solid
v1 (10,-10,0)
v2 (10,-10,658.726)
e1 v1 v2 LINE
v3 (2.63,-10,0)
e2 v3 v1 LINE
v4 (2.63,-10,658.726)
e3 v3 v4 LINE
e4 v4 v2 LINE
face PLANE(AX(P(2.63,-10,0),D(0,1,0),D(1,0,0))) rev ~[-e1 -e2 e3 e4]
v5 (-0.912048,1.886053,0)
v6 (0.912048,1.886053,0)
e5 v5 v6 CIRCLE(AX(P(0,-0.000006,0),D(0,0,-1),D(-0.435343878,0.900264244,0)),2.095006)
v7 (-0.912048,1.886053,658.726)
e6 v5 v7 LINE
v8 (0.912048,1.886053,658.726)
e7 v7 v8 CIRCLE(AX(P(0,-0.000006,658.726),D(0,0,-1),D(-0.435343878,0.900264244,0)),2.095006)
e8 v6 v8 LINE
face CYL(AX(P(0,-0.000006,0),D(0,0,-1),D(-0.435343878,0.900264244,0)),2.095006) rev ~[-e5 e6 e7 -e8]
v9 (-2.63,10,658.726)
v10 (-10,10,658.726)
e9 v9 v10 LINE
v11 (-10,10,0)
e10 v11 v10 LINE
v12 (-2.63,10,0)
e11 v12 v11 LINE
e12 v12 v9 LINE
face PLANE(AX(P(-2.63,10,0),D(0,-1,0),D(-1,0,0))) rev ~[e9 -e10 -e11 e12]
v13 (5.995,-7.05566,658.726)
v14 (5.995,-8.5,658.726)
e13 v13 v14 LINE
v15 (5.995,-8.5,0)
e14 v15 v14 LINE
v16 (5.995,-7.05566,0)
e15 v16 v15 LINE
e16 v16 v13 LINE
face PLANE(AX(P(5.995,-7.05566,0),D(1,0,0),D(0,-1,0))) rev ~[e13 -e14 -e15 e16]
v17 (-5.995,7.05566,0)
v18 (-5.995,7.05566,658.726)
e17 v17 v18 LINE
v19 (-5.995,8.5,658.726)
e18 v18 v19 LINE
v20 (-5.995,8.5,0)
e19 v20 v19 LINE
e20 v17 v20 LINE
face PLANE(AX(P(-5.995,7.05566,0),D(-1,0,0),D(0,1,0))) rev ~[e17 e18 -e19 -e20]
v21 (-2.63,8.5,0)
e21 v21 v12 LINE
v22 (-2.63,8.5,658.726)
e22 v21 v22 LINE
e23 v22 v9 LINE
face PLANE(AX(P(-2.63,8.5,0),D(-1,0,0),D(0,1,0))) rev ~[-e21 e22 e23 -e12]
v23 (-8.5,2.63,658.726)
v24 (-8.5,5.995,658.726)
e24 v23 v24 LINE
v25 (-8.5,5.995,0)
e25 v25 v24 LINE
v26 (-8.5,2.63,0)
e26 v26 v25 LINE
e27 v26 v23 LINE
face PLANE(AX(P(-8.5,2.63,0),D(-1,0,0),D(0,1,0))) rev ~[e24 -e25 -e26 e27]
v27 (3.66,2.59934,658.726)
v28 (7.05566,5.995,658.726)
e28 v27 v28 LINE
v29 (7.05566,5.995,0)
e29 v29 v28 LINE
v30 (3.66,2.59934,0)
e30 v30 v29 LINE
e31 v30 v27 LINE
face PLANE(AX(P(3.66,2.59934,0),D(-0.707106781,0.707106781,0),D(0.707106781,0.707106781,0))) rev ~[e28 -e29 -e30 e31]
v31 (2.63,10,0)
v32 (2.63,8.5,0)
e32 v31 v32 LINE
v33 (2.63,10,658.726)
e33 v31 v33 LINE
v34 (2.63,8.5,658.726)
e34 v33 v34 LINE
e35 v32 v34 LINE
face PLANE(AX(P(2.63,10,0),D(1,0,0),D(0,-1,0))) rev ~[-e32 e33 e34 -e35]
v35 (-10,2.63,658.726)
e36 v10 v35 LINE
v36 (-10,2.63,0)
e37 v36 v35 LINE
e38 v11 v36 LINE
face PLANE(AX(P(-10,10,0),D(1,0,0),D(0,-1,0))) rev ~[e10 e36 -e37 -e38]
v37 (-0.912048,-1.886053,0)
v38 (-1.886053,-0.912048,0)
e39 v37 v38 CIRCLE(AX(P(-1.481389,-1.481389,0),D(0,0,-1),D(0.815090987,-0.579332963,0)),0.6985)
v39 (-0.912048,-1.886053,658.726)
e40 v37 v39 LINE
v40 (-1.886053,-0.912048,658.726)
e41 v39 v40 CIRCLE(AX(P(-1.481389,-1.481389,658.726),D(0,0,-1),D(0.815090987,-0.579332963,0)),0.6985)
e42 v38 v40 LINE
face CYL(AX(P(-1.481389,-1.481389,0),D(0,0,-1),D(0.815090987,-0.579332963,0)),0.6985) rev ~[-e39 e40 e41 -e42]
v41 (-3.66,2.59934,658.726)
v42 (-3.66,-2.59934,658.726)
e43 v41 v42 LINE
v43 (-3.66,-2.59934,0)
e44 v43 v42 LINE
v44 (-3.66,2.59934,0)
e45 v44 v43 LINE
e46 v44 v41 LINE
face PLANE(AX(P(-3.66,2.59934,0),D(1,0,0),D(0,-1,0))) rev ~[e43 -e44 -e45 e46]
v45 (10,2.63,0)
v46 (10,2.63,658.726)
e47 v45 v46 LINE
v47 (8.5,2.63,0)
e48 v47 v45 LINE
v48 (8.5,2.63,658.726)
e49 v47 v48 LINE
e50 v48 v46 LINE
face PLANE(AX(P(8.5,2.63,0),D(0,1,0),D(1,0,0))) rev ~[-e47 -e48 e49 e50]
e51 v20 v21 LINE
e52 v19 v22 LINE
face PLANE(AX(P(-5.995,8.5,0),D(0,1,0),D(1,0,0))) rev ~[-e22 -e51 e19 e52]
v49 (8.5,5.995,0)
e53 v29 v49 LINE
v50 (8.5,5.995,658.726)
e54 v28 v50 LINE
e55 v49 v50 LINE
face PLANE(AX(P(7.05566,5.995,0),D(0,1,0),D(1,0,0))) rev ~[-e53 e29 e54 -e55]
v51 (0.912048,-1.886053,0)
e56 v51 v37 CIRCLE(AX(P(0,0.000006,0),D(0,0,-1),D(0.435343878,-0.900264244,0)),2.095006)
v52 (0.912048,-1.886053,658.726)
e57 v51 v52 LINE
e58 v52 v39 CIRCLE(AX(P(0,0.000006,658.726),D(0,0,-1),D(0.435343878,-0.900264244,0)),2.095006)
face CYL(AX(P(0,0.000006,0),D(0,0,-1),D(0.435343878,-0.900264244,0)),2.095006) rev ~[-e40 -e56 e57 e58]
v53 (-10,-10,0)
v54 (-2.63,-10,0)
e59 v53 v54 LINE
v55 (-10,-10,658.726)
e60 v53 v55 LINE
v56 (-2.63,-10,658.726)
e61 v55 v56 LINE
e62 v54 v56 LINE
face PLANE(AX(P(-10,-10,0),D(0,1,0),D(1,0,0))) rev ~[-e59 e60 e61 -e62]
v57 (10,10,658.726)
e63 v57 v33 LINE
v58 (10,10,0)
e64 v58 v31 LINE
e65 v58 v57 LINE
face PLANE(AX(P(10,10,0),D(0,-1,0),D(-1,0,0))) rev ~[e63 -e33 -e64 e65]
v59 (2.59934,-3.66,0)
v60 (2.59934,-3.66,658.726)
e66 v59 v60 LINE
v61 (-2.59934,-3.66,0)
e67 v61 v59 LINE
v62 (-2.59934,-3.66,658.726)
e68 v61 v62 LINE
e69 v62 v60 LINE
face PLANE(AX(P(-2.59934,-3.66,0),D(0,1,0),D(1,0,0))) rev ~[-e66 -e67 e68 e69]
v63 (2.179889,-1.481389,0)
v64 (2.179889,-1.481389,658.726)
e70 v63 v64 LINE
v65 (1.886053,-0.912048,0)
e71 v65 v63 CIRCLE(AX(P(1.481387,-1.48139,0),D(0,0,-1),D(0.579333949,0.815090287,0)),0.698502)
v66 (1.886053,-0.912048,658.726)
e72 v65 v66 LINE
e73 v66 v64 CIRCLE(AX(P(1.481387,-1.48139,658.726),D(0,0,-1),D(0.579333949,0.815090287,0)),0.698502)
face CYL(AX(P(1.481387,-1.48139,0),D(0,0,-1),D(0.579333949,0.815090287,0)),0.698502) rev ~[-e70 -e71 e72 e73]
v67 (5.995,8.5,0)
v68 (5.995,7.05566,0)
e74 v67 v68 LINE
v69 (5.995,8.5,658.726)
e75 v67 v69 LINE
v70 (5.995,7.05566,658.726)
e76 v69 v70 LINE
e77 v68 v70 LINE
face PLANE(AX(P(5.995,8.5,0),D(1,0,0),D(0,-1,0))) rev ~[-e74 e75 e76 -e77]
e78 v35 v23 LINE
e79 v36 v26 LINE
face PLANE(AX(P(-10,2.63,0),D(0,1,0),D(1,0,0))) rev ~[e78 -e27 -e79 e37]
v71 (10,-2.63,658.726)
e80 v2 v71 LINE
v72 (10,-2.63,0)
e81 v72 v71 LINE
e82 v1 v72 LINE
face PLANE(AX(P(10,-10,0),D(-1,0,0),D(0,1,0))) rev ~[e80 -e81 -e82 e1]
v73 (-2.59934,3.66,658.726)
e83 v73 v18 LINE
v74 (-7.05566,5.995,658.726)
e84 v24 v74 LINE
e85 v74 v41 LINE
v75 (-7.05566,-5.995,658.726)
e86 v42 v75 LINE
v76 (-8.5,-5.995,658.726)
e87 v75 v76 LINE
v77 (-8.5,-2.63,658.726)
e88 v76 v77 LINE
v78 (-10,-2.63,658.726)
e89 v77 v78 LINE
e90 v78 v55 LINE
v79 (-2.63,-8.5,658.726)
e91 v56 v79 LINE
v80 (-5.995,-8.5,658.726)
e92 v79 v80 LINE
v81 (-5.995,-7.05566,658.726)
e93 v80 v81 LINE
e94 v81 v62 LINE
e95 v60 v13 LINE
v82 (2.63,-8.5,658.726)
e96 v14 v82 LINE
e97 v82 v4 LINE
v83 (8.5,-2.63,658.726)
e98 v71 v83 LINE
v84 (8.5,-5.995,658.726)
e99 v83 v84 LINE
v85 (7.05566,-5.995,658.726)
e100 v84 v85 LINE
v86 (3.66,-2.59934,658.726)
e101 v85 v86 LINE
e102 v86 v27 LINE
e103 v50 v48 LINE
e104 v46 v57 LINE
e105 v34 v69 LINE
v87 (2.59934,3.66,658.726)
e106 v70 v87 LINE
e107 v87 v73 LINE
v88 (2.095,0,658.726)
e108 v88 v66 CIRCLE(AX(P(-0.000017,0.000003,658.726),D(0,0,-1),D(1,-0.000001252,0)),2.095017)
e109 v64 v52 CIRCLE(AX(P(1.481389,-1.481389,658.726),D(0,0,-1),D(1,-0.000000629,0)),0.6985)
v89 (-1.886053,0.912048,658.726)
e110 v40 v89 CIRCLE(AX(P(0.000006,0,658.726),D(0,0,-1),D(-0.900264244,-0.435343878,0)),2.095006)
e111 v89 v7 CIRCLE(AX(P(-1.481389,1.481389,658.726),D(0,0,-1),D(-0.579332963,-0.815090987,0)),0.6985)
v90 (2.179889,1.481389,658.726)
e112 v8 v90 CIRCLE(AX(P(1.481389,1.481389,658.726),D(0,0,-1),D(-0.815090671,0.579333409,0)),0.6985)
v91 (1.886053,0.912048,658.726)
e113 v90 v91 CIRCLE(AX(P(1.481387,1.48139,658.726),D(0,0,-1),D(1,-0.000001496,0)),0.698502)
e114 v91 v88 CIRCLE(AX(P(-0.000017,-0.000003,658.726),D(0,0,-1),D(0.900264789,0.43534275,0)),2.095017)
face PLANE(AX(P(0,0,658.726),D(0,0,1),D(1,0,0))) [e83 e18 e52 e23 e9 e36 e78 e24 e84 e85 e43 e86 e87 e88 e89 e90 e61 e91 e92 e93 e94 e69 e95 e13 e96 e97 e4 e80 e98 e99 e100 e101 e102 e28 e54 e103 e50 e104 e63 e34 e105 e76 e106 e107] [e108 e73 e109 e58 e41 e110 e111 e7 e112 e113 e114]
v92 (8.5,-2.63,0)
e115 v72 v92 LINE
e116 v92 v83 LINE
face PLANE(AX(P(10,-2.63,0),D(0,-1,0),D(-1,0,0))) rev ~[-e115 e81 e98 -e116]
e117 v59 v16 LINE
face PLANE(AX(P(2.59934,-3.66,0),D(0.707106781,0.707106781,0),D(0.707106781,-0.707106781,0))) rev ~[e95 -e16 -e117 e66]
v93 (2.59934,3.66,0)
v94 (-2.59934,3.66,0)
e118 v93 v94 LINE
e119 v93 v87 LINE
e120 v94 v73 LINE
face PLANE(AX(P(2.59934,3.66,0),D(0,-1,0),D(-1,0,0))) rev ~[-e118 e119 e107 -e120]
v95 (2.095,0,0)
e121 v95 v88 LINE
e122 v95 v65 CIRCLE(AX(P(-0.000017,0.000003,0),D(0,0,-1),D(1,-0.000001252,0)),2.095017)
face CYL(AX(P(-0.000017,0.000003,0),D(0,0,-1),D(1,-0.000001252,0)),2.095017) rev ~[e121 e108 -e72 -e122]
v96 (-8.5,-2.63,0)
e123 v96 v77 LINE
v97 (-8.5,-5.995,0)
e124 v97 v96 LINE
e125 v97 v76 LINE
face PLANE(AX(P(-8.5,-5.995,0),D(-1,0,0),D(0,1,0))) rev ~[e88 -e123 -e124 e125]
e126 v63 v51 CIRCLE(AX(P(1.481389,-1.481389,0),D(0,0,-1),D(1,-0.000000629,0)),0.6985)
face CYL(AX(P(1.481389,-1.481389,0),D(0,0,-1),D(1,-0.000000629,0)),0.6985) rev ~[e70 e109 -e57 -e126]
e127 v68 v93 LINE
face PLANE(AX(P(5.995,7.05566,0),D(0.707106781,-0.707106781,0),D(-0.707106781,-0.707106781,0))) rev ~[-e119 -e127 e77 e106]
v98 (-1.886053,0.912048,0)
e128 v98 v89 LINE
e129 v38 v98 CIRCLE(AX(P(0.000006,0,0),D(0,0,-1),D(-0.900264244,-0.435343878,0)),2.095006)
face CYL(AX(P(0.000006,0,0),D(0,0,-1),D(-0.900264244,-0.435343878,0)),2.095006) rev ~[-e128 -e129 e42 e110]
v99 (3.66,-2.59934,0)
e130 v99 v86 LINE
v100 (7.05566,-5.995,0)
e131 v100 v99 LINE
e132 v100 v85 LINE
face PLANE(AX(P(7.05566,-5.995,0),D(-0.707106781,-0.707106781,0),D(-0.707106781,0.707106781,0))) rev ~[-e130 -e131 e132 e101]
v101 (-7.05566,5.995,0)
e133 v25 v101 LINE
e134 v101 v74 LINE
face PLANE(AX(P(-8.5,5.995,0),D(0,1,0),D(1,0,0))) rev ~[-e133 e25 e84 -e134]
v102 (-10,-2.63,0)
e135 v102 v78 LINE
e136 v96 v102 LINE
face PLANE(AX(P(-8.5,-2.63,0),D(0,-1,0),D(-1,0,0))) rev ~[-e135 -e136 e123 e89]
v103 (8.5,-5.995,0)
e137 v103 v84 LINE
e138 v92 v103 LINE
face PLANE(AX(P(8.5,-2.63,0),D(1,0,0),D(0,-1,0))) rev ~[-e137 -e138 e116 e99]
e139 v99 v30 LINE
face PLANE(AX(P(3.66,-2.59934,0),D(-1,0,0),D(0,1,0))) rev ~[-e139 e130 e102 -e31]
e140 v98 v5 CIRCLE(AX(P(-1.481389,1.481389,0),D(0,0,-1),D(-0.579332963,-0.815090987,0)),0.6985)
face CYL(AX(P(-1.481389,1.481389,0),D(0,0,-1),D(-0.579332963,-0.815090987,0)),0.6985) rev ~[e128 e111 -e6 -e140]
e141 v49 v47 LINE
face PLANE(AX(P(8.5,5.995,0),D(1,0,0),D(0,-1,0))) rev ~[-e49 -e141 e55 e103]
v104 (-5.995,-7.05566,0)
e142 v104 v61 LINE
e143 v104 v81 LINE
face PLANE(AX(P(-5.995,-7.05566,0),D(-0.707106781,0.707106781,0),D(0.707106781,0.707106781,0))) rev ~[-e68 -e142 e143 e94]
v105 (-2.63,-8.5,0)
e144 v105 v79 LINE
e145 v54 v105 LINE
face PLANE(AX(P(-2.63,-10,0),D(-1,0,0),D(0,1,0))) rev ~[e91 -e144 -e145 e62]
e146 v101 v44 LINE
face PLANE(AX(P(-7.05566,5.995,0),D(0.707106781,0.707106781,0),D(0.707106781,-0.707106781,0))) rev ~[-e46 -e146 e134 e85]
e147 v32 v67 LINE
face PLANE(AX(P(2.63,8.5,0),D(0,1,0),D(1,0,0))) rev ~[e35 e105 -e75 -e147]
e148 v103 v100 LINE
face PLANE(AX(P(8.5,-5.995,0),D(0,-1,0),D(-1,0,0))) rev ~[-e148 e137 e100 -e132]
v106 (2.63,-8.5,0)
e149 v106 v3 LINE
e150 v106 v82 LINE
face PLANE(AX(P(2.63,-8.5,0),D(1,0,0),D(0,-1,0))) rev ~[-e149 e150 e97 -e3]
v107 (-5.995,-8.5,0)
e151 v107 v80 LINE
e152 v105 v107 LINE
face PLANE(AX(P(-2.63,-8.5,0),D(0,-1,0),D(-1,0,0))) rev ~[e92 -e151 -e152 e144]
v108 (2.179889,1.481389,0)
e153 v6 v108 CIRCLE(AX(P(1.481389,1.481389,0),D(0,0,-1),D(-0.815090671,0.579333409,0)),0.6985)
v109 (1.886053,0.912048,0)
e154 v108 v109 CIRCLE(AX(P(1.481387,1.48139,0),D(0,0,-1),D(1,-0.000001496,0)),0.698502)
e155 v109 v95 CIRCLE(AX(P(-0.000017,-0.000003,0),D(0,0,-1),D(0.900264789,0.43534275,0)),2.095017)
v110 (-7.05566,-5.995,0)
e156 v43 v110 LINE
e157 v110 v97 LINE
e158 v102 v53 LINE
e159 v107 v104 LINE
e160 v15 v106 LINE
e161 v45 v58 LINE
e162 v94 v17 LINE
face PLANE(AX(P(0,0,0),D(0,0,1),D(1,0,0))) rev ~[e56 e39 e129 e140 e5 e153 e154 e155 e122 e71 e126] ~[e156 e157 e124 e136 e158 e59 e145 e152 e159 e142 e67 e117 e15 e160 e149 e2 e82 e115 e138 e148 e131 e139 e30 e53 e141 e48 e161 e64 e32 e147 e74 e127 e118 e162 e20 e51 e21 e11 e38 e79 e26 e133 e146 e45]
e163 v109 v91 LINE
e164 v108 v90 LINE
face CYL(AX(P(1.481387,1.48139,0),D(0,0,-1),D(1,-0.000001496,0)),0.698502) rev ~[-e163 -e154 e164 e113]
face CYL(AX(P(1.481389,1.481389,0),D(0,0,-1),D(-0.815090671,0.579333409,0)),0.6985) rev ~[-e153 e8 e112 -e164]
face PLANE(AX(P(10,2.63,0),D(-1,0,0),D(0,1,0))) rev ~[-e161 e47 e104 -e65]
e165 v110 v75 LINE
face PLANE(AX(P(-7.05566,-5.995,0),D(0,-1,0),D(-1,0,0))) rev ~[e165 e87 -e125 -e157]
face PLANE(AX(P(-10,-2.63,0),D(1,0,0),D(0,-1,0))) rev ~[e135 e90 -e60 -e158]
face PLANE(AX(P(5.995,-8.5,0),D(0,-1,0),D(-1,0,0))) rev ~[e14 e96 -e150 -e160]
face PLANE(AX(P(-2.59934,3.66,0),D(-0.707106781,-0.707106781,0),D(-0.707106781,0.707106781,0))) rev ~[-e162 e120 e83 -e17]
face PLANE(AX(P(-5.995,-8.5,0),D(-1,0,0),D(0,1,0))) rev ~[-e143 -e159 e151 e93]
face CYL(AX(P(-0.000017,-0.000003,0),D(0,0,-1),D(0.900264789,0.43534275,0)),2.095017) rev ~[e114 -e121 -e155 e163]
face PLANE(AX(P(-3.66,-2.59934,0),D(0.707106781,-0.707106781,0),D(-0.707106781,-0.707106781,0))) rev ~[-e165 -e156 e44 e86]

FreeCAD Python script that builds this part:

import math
import FreeCAD as App
import Part
import Sketcher
Q = App.Units.Quantity


def add_polygon(sketch, points):
    """Adds a closed chain of lines whose ends are joined by coincident constraints."""
    first, n = sketch.GeometryCount, len(points)
    for a, b in zip(points, points[1:] + points[:1]):
        sketch.addGeometry(Part.LineSegment(App.Vector(*a, 0), App.Vector(*b, 0)), False)
    for i in range(n):
        sketch.addConstraint(Sketcher.Constraint("Coincident", first + i, 2, first + (i + 1) % n, 1))

doc = App.newDocument("Part")
params = doc.addObject("Spreadsheet::Sheet", "Params")
for row, (alias, value) in enumerate([
    ("pad1_length", "658.726 mm"),
], start=1):
    params.set(f"A{row}", alias)
    params.set(f"B{row}", "=" + value)
    params.setAlias(f"B{row}", alias)

body = doc.addObject("PartDesign::Body", "Body")

sketch1 = doc.addObject("Sketcher::SketchObject", "Sketch")
body.addObject(sketch1)
sketch1.AttachmentSupport = (doc.XY_Plane, [""])
sketch1.MapMode = "FlatFace"
add_polygon(sketch1, [(10, 2.6), (10, 10), (2.6, 10), (2.6, 8.5), (6, 8.5), (6, 7.1), (2.6, 3.7), (-2.6, 3.7), (-6, 7.1), (-6, 8.5), (-2.6, 8.5), (-2.6, 10), (-10, 10), (-10, 2.6), (-8.5, 2.6), (-8.5, 6), (-7.1, 6), (-3.7, 2.6), (-3.7, -2.6), (-7.1, -6), (-8.5, -6), (-8.5, -2.6), (-10, -2.6), (-10, -10), (-2.6, -10), (-2.6, -8.5), (-6, -8.5), (-6, -7.1), (-2.6, -3.7), (2.6, -3.7), (6, -7.1), (6, -8.5), (2.6, -8.5), (2.6, -10), (10, -10), (10, -2.6), (8.5, -2.6), (8.5, -6), (7.1, -6), (3.7, -2.6), (3.7, 2.6), (7.1, 6), (8.5, 6), (8.5, 2.6)])
sketch1.addGeometry(Part.ArcOfCircle(Part.Circle(App.Vector(1.5, 1.5, 0), App.Vector(0, 0, 1), 0.7), math.radians(-55), math.radians(0)), False)
sketch1.addGeometry(Part.ArcOfCircle(Part.Circle(App.Vector(0, 0, 0), App.Vector(0, 0, 1), 2.1), math.radians(0), math.radians(26)), False)
sketch1.addGeometry(Part.ArcOfCircle(Part.Circle(App.Vector(0, 0, 0), App.Vector(0, 0, 1), 2.1), math.radians(-26), math.radians(0)), False)
sketch1.addGeometry(Part.ArcOfCircle(Part.Circle(App.Vector(1.5, -1.5, 0), App.Vector(0, 0, 1), 0.7), math.radians(0), math.radians(55)), False)
sketch1.addGeometry(Part.ArcOfCircle(Part.Circle(App.Vector(1.5, -1.5, 0), App.Vector(0, 0, 1), 0.7), math.radians(-145), math.radians(0)), False)
sketch1.addGeometry(Part.ArcOfCircle(Part.Circle(App.Vector(0, 0, 0), App.Vector(0, 0, 1), 2.1), math.radians(-116), math.radians(-64)), False)
sketch1.addGeometry(Part.ArcOfCircle(Part.Circle(App.Vector(-1.5, -1.5, 0), App.Vector(0, 0, 1), 0.7), math.radians(125), math.radians(325)), False)
sketch1.addGeometry(Part.ArcOfCircle(Part.Circle(App.Vector(0, 0, 0), App.Vector(0, 0, 1), 2.1), math.radians(154), math.radians(206)), False)
sketch1.addGeometry(Part.ArcOfCircle(Part.Circle(App.Vector(-1.5, 1.5, 0), App.Vector(0, 0, 1), 0.7), math.radians(35), math.radians(235)), False)
sketch1.addGeometry(Part.ArcOfCircle(Part.Circle(App.Vector(0, 0, 0), App.Vector(0, 0, 1), 2.1), math.radians(64), math.radians(116)), False)
sketch1.addGeometry(Part.ArcOfCircle(Part.Circle(App.Vector(1.5, 1.5, 0), App.Vector(0, 0, 1), 0.7), math.radians(0), math.radians(145)), False)
sketch1.addConstraint([
    Sketcher.Constraint("Coincident", 44, 1, 45, 2),
    Sketcher.Constraint("Coincident", 45, 1, 46, 2),
    Sketcher.Constraint("Coincident", 46, 1, 47, 2),
    Sketcher.Constraint("Coincident", 47, 1, 48, 2),
    Sketcher.Constraint("Coincident", 48, 1, 49, 2),
    Sketcher.Constraint("Coincident", 49, 1, 50, 2),
    Sketcher.Constraint("Coincident", 50, 1, 51, 2),
    Sketcher.Constraint("Coincident", 51, 1, 52, 2),
    Sketcher.Constraint("Coincident", 52, 1, 53, 2),
    Sketcher.Constraint("Coincident", 53, 1, 54, 2),
    Sketcher.Constraint("Coincident", 54, 1, 44, 2),
    Sketcher.Constraint("Vertical", 0),
    Sketcher.Constraint("Horizontal", 1),
    Sketcher.Constraint("Vertical", 2),
    Sketcher.Constraint("Horizontal", 3),
    Sketcher.Constraint("Vertical", 4),
    Sketcher.Constraint("Horizontal", 6),
    Sketcher.Constraint("Vertical", 8),
    Sketcher.Constraint("Horizontal", 9),
    Sketcher.Constraint("Vertical", 10),
    Sketcher.Constraint("Horizontal", 11),
    Sketcher.Constraint("Vertical", 12),
    Sketcher.Constraint("Horizontal", 13),
    Sketcher.Constraint("Vertical", 14),
    Sketcher.Constraint("Horizontal", 15),
    Sketcher.Constraint("Vertical", 17),
    Sketcher.Constraint("Horizontal", 19),
    Sketcher.Constraint("Vertical", 20),
    Sketcher.Constraint("Horizontal", 21),
    Sketcher.Constraint("Vertical", 22),
    Sketcher.Constraint("Horizontal", 23),
    Sketcher.Constraint("Vertical", 24),
    Sketcher.Constraint("Horizontal", 25),
    Sketcher.Constraint("Vertical", 26),
    Sketcher.Constraint("Horizontal", 28),
    Sketcher.Constraint("Vertical", 30),
    Sketcher.Constraint("Horizontal", 31),
    Sketcher.Constraint("Vertical", 32),
    Sketcher.Constraint("Horizontal", 33),
    Sketcher.Constraint("Vertical", 34),
    Sketcher.Constraint("Horizontal", 35),
    Sketcher.Constraint("Vertical", 36),
    Sketcher.Constraint("Horizontal", 37),
    Sketcher.Constraint("Vertical", 39),
    Sketcher.Constraint("Horizontal", 41),
    Sketcher.Constraint("Vertical", 42),
    Sketcher.Constraint("Horizontal", 43),
    Sketcher.Constraint("Coincident", 49, 3, -1, 1),
    Sketcher.Constraint("Coincident", 51, 3, -1, 1),
    Sketcher.Constraint("Coincident", 53, 3, -1, 1),
    Sketcher.Constraint("Coincident", 46, 3, 45, 3),
    Sketcher.Constraint("Coincident", 48, 3, 47, 3),
    Sketcher.Constraint("Coincident", 54, 3, 44, 3),
    Sketcher.Constraint("Equal", 44, 47),
    Sketcher.Constraint("Equal", 48, 50),
    Sketcher.Constraint("Equal", 49, 51),
    Sketcher.Constraint("Equal", 50, 52),
    Sketcher.Constraint("Equal", 51, 53),
    Sketcher.Constraint("Symmetric", 44, 3, 50, 3, -1, 1),
    Sketcher.Constraint("Symmetric", 47, 3, 52, 3, -1, 1),
    Sketcher.Constraint("Symmetric", 0, 2, 22, 2, -1, 1),
    Sketcher.Constraint("Symmetric", 2, 2, 24, 2, -1, 1),
    Sketcher.Constraint("Symmetric", 4, 2, 26, 2, -1, 1),
    Sketcher.Constraint("Symmetric", 5, 2, 27, 2, -1, 1),
    Sketcher.Constraint("Symmetric", 7, 2, 29, 2, -1, 1),
    Sketcher.Constraint("Symmetric", 9, 2, 31, 2, -1, 1),
    Sketcher.Constraint("Symmetric", 11, 2, 33, 2, -1, 1),
    Sketcher.Constraint("Symmetric", 13, 2, 35, 2, -1, 1),
    Sketcher.Constraint("Symmetric", 15, 2, 37, 2, -1, 1),
    Sketcher.Constraint("Symmetric", 16, 2, 38, 2, -1, 1),
    Sketcher.Constraint("Symmetric", 18, 2, 40, 2, -1, 1),
    Sketcher.Constraint("Symmetric", 20, 2, 42, 2, -1, 1),
    Sketcher.Constraint("Symmetric", 47, 3, 50, 3, -2),
    Sketcher.Constraint("Symmetric", 4, 2, 7, 2, -2),
    Sketcher.Constraint("Symmetric", 2, 2, 9, 2, -2),
    Sketcher.Constraint("Symmetric", 0, 2, 11, 2, -2),
    Sketcher.Constraint("Symmetric", 20, 2, 35, 2, -2),
    Sketcher.Constraint("Symmetric", 18, 2, 37, 2, -2),
    Sketcher.Constraint("PointOnObject", 45, 1, -1),
    Sketcher.Constraint("Perpendicular", 5, 7),
    Sketcher.Constraint("Parallel", 7, 16),
    Sketcher.Constraint("Perpendicular", 16, 18),
    Sketcher.Constraint("Perpendicular", 27, 29),
    Sketcher.Constraint("Perpendicular", 38, 40),
    Sketcher.Constraint("Horizontal", 17, 2, 38, 2),
    Sketcher.Constraint("Horizontal", 50, 3, 47, 1),
    Sketcher.Constraint("Horizontal", 46, 1, 50, 1),
    Sketcher.Constraint("Horizontal", 44, 1, 51, 1),
    Sketcher.Constraint("Horizontal", 52, 3, 54, 1),
    Sketcher.Constraint("Equal", 33, 0),
    Sketcher.Constraint("Equal", 43, 2),
    Sketcher.Constraint("Equal", 41, 4),
    Sketcher.Constraint("Equal", 31, 14),
    Sketcher.Constraint("Equal", 28, 17),
    Sketcher.Constraint("Equal", 7, 16),
    Sketcher.Constraint("Radius", 44, Q("0.0275001 in")),
    Sketcher.Constraint("DistanceX", 1, 2, 1, 1, Q("7.37 mm")),
    Sketcher.Constraint("DistanceX", 3, 1, 3, 2, Q("3.365 mm")),
    Sketcher.Constraint("DistanceX", 13, 1, 13, 2, Q("1.5 mm")),
    Sketcher.Constraint("Radius", 45, Q("2.095017 mm")),
    Sketcher.Constraint("Radius", 49, Q("2.095006 mm")),
    Sketcher.Constraint("DistanceX", 6, 2, 6, 1, Q("5.19868 mm")),
    Sketcher.Constraint("DistanceX", 15, 1, 15, 2, Q("1.44434 mm")),
    Sketcher.Constraint("DistanceX", -1, 1, 0, 2, Q("10 mm")),
    Sketcher.Constraint("DistanceY", -1, 1, 44, 3, Q("1.48139 mm")),
    Sketcher.Constraint("DistanceX", -1, 1, 48, 3, Q("1.481389 mm")),
])
pad1 = doc.addObject("PartDesign::Pad", "Pad")
body.addObject(pad1)
pad1.Profile = sketch1
pad1.setExpression("Length", "Params.pad1_length")

doc.recompute()
